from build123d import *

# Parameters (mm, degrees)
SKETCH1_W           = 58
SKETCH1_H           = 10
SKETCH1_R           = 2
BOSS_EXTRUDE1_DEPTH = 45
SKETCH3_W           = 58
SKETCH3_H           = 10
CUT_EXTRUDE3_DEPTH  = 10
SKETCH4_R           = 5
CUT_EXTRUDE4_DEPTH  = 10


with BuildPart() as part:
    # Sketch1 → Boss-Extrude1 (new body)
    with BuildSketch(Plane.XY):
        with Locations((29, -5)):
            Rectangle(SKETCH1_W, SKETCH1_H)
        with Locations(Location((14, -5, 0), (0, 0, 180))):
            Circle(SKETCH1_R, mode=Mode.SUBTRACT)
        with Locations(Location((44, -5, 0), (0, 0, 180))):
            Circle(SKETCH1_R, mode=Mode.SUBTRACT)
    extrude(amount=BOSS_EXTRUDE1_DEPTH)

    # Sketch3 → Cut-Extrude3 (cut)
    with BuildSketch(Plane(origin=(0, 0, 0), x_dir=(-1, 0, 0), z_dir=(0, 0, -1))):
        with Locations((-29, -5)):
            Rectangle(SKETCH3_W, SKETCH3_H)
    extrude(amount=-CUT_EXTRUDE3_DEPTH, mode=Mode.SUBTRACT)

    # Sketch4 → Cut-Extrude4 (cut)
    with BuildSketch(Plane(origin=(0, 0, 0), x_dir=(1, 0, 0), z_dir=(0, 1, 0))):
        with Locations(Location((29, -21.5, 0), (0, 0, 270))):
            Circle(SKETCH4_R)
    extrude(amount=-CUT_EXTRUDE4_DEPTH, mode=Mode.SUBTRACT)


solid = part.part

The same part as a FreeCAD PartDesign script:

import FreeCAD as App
import Part
import Sketcher
from FreeCAD import Vector

doc = App.newDocument("Part")
params = doc.addObject("Spreadsheet::Sheet", "Params")
for row, (alias, value) in enumerate([
    ("sketch1_diameter", "4 mm"),
    ("sketch1_width", "58 mm"),
    ("sketch1_height", "10 mm"),
    ("pad1_length", "45 mm"),
    ("sketch2_width", "58 mm"),
    ("sketch2_height", "10 mm"),
    ("pocket1_length", "10 mm"),
    ("sketch3_diameter", "10 mm"),
    ("pocket2_length", "10 mm"),
], start=1):
    params.set(f"A{row}", alias)
    params.set(f"B{row}", "=" + value)
    params.setAlias(f"B{row}", alias)

body = doc.addObject("PartDesign::Body", "Body")

# Sketch on XY plane
sketch1 = body.newObject("Sketcher::SketchObject", "Sketch")
sketch1.AttachmentSupport = (doc.getObject("XY_Plane"), [""])
sketch1.MapMode = "FlatFace"
sketch1.addGeometry(Part.LineSegment(Vector(0, 0, 0), Vector(0, -10, 0)), False)
sketch1.addGeometry(Part.LineSegment(Vector(0, -10, 0), Vector(58, -10, 0)), False)
sketch1.addGeometry(Part.LineSegment(Vector(58, -10, 0), Vector(58, 0, 0)), False)
sketch1.addGeometry(Part.LineSegment(Vector(58, 0, 0), Vector(0, 0, 0)), False)
sketch1.addGeometry(Part.Circle(Vector(14, -5, 0), Vector(0, 0, 1), 2), False)
sketch1.addGeometry(Part.Circle(Vector(44, -5, 0), Vector(0, 0, 1), 2), False)
sketch1.addConstraint(Sketcher.Constraint("Coincident", 0, 2, 1, 1))
sketch1.addConstraint(Sketcher.Constraint("Coincident", 1, 2, 2, 1))
sketch1.addConstraint(Sketcher.Constraint("Coincident", 2, 2, 3, 1))
sketch1.addConstraint(Sketcher.Constraint("Coincident", 3, 2, 0, 1))
sketch1.addConstraint(Sketcher.Constraint("Vertical", 0))
sketch1.addConstraint(Sketcher.Constraint("Horizontal", 1))
sketch1.addConstraint(Sketcher.Constraint("Vertical", 2))
sketch1.addConstraint(Sketcher.Constraint("Horizontal", 3))
sketch1.addConstraint(Sketcher.Constraint("Coincident", 3, 2, -1, 1))
sketch1.addConstraint(Sketcher.Constraint("Equal", 4, 5))
sketch1.addConstraint(Sketcher.Constraint("Horizontal", 4, 3, 5, 3))
sketch1.addConstraint(Sketcher.Constraint("Diameter", 4, 4.0))
sketch1.addConstraint(Sketcher.Constraint("DistanceX", 1, 1, 1, 2, 58.0))
sketch1.addConstraint(Sketcher.Constraint("DistanceY", 0, 2, 0, 1, 10.0))
sketch1.addConstraint(Sketcher.Constraint("DistanceX", -1, 1, 4, 3, 14.0))
sketch1.addConstraint(Sketcher.Constraint("DistanceY", 4, 3, -1, 1, 5.0))
sketch1.addConstraint(Sketcher.Constraint("DistanceX", -1, 1, 5, 3, 44.0))
sketch1.setExpression("Constraints[11]", "Params.sketch1_diameter")
sketch1.setExpression("Constraints[12]", "Params.sketch1_width")
sketch1.setExpression("Constraints[13]", "Params.sketch1_height")
pad1 = body.newObject("PartDesign::Pad", "Pad")
pad1.Profile = sketch1
pad1.setExpression("Length", "Params.pad1_length")

# Sketch on XY plane
sketch2 = body.newObject("Sketcher::SketchObject", "Sketch001")
sketch2.AttachmentSupport = (doc.getObject("XY_Plane"), [""])
sketch2.MapMode = "FlatFace"
sketch2.addGeometry(Part.LineSegment(Vector(58, 0, 0), Vector(58, -10, 0)), False)
sketch2.addGeometry(Part.LineSegment(Vector(58, -10, 0), Vector(0, -10, 0)), False)
sketch2.addGeometry(Part.LineSegment(Vector(0, -10, 0), Vector(0, 0, 0)), False)
sketch2.addGeometry(Part.LineSegment(Vector(0, 0, 0), Vector(58, 0, 0)), False)
sketch2.addConstraint(Sketcher.Constraint("Coincident", 0, 2, 1, 1))
sketch2.addConstraint(Sketcher.Constraint("Coincident", 1, 2, 2, 1))
sketch2.addConstraint(Sketcher.Constraint("Coincident", 2, 2, 3, 1))
sketch2.addConstraint(Sketcher.Constraint("Coincident", 3, 2, 0, 1))
sketch2.addConstraint(Sketcher.Constraint("Vertical", 0))
sketch2.addConstraint(Sketcher.Constraint("Horizontal", 1))
sketch2.addConstraint(Sketcher.Constraint("Vertical", 2))
sketch2.addConstraint(Sketcher.Constraint("Horizontal", 3))
sketch2.addConstraint(Sketcher.Constraint("Coincident", 2, 2, -1, 1))
sketch2.addConstraint(Sketcher.Constraint("DistanceX", 1, 2, 1, 1, 58.0))
sketch2.addConstraint(Sketcher.Constraint("DistanceY", 0, 2, 0, 1, 10.0))
sketch2.setExpression("Constraints[9]", "Params.sketch2_width")
sketch2.setExpression("Constraints[10]", "Params.sketch2_height")
pocket1 = body.newObject("PartDesign::Pocket", "Pocket")
pocket1.Profile = sketch2
pocket1.setExpression("Length", "Params.pocket1_length")
pocket1.Reversed = True

# Sketch on XZ plane
sketch3 = body.newObject("Sketcher::SketchObject", "Sketch002")
sketch3.AttachmentSupport = (doc.getObject("XZ_Plane"), [""])
sketch3.MapMode = "FlatFace"
sketch3.addGeometry(Part.Circle(Vector(29, 22, 0), Vector(0, 0, 1), 5), False)
sketch3.addConstraint(Sketcher.Constraint("Diameter", 0, 10.0))
sketch3.addConstraint(Sketcher.Constraint("DistanceX", -1, 1, 0, 3, 29.0))
sketch3.addConstraint(Sketcher.Constraint("DistanceY", -1, 1, 0, 3, 21.5))
sketch3.setExpression("Constraints[0]", "Params.sketch3_diameter")
pocket2 = body.newObject("PartDesign::Pocket", "Pocket001")
pocket2.Profile = sketch3
pocket2.setExpression("Length", "Params.pocket2_length")
pocket2.Reversed = True

doc.recompute()
